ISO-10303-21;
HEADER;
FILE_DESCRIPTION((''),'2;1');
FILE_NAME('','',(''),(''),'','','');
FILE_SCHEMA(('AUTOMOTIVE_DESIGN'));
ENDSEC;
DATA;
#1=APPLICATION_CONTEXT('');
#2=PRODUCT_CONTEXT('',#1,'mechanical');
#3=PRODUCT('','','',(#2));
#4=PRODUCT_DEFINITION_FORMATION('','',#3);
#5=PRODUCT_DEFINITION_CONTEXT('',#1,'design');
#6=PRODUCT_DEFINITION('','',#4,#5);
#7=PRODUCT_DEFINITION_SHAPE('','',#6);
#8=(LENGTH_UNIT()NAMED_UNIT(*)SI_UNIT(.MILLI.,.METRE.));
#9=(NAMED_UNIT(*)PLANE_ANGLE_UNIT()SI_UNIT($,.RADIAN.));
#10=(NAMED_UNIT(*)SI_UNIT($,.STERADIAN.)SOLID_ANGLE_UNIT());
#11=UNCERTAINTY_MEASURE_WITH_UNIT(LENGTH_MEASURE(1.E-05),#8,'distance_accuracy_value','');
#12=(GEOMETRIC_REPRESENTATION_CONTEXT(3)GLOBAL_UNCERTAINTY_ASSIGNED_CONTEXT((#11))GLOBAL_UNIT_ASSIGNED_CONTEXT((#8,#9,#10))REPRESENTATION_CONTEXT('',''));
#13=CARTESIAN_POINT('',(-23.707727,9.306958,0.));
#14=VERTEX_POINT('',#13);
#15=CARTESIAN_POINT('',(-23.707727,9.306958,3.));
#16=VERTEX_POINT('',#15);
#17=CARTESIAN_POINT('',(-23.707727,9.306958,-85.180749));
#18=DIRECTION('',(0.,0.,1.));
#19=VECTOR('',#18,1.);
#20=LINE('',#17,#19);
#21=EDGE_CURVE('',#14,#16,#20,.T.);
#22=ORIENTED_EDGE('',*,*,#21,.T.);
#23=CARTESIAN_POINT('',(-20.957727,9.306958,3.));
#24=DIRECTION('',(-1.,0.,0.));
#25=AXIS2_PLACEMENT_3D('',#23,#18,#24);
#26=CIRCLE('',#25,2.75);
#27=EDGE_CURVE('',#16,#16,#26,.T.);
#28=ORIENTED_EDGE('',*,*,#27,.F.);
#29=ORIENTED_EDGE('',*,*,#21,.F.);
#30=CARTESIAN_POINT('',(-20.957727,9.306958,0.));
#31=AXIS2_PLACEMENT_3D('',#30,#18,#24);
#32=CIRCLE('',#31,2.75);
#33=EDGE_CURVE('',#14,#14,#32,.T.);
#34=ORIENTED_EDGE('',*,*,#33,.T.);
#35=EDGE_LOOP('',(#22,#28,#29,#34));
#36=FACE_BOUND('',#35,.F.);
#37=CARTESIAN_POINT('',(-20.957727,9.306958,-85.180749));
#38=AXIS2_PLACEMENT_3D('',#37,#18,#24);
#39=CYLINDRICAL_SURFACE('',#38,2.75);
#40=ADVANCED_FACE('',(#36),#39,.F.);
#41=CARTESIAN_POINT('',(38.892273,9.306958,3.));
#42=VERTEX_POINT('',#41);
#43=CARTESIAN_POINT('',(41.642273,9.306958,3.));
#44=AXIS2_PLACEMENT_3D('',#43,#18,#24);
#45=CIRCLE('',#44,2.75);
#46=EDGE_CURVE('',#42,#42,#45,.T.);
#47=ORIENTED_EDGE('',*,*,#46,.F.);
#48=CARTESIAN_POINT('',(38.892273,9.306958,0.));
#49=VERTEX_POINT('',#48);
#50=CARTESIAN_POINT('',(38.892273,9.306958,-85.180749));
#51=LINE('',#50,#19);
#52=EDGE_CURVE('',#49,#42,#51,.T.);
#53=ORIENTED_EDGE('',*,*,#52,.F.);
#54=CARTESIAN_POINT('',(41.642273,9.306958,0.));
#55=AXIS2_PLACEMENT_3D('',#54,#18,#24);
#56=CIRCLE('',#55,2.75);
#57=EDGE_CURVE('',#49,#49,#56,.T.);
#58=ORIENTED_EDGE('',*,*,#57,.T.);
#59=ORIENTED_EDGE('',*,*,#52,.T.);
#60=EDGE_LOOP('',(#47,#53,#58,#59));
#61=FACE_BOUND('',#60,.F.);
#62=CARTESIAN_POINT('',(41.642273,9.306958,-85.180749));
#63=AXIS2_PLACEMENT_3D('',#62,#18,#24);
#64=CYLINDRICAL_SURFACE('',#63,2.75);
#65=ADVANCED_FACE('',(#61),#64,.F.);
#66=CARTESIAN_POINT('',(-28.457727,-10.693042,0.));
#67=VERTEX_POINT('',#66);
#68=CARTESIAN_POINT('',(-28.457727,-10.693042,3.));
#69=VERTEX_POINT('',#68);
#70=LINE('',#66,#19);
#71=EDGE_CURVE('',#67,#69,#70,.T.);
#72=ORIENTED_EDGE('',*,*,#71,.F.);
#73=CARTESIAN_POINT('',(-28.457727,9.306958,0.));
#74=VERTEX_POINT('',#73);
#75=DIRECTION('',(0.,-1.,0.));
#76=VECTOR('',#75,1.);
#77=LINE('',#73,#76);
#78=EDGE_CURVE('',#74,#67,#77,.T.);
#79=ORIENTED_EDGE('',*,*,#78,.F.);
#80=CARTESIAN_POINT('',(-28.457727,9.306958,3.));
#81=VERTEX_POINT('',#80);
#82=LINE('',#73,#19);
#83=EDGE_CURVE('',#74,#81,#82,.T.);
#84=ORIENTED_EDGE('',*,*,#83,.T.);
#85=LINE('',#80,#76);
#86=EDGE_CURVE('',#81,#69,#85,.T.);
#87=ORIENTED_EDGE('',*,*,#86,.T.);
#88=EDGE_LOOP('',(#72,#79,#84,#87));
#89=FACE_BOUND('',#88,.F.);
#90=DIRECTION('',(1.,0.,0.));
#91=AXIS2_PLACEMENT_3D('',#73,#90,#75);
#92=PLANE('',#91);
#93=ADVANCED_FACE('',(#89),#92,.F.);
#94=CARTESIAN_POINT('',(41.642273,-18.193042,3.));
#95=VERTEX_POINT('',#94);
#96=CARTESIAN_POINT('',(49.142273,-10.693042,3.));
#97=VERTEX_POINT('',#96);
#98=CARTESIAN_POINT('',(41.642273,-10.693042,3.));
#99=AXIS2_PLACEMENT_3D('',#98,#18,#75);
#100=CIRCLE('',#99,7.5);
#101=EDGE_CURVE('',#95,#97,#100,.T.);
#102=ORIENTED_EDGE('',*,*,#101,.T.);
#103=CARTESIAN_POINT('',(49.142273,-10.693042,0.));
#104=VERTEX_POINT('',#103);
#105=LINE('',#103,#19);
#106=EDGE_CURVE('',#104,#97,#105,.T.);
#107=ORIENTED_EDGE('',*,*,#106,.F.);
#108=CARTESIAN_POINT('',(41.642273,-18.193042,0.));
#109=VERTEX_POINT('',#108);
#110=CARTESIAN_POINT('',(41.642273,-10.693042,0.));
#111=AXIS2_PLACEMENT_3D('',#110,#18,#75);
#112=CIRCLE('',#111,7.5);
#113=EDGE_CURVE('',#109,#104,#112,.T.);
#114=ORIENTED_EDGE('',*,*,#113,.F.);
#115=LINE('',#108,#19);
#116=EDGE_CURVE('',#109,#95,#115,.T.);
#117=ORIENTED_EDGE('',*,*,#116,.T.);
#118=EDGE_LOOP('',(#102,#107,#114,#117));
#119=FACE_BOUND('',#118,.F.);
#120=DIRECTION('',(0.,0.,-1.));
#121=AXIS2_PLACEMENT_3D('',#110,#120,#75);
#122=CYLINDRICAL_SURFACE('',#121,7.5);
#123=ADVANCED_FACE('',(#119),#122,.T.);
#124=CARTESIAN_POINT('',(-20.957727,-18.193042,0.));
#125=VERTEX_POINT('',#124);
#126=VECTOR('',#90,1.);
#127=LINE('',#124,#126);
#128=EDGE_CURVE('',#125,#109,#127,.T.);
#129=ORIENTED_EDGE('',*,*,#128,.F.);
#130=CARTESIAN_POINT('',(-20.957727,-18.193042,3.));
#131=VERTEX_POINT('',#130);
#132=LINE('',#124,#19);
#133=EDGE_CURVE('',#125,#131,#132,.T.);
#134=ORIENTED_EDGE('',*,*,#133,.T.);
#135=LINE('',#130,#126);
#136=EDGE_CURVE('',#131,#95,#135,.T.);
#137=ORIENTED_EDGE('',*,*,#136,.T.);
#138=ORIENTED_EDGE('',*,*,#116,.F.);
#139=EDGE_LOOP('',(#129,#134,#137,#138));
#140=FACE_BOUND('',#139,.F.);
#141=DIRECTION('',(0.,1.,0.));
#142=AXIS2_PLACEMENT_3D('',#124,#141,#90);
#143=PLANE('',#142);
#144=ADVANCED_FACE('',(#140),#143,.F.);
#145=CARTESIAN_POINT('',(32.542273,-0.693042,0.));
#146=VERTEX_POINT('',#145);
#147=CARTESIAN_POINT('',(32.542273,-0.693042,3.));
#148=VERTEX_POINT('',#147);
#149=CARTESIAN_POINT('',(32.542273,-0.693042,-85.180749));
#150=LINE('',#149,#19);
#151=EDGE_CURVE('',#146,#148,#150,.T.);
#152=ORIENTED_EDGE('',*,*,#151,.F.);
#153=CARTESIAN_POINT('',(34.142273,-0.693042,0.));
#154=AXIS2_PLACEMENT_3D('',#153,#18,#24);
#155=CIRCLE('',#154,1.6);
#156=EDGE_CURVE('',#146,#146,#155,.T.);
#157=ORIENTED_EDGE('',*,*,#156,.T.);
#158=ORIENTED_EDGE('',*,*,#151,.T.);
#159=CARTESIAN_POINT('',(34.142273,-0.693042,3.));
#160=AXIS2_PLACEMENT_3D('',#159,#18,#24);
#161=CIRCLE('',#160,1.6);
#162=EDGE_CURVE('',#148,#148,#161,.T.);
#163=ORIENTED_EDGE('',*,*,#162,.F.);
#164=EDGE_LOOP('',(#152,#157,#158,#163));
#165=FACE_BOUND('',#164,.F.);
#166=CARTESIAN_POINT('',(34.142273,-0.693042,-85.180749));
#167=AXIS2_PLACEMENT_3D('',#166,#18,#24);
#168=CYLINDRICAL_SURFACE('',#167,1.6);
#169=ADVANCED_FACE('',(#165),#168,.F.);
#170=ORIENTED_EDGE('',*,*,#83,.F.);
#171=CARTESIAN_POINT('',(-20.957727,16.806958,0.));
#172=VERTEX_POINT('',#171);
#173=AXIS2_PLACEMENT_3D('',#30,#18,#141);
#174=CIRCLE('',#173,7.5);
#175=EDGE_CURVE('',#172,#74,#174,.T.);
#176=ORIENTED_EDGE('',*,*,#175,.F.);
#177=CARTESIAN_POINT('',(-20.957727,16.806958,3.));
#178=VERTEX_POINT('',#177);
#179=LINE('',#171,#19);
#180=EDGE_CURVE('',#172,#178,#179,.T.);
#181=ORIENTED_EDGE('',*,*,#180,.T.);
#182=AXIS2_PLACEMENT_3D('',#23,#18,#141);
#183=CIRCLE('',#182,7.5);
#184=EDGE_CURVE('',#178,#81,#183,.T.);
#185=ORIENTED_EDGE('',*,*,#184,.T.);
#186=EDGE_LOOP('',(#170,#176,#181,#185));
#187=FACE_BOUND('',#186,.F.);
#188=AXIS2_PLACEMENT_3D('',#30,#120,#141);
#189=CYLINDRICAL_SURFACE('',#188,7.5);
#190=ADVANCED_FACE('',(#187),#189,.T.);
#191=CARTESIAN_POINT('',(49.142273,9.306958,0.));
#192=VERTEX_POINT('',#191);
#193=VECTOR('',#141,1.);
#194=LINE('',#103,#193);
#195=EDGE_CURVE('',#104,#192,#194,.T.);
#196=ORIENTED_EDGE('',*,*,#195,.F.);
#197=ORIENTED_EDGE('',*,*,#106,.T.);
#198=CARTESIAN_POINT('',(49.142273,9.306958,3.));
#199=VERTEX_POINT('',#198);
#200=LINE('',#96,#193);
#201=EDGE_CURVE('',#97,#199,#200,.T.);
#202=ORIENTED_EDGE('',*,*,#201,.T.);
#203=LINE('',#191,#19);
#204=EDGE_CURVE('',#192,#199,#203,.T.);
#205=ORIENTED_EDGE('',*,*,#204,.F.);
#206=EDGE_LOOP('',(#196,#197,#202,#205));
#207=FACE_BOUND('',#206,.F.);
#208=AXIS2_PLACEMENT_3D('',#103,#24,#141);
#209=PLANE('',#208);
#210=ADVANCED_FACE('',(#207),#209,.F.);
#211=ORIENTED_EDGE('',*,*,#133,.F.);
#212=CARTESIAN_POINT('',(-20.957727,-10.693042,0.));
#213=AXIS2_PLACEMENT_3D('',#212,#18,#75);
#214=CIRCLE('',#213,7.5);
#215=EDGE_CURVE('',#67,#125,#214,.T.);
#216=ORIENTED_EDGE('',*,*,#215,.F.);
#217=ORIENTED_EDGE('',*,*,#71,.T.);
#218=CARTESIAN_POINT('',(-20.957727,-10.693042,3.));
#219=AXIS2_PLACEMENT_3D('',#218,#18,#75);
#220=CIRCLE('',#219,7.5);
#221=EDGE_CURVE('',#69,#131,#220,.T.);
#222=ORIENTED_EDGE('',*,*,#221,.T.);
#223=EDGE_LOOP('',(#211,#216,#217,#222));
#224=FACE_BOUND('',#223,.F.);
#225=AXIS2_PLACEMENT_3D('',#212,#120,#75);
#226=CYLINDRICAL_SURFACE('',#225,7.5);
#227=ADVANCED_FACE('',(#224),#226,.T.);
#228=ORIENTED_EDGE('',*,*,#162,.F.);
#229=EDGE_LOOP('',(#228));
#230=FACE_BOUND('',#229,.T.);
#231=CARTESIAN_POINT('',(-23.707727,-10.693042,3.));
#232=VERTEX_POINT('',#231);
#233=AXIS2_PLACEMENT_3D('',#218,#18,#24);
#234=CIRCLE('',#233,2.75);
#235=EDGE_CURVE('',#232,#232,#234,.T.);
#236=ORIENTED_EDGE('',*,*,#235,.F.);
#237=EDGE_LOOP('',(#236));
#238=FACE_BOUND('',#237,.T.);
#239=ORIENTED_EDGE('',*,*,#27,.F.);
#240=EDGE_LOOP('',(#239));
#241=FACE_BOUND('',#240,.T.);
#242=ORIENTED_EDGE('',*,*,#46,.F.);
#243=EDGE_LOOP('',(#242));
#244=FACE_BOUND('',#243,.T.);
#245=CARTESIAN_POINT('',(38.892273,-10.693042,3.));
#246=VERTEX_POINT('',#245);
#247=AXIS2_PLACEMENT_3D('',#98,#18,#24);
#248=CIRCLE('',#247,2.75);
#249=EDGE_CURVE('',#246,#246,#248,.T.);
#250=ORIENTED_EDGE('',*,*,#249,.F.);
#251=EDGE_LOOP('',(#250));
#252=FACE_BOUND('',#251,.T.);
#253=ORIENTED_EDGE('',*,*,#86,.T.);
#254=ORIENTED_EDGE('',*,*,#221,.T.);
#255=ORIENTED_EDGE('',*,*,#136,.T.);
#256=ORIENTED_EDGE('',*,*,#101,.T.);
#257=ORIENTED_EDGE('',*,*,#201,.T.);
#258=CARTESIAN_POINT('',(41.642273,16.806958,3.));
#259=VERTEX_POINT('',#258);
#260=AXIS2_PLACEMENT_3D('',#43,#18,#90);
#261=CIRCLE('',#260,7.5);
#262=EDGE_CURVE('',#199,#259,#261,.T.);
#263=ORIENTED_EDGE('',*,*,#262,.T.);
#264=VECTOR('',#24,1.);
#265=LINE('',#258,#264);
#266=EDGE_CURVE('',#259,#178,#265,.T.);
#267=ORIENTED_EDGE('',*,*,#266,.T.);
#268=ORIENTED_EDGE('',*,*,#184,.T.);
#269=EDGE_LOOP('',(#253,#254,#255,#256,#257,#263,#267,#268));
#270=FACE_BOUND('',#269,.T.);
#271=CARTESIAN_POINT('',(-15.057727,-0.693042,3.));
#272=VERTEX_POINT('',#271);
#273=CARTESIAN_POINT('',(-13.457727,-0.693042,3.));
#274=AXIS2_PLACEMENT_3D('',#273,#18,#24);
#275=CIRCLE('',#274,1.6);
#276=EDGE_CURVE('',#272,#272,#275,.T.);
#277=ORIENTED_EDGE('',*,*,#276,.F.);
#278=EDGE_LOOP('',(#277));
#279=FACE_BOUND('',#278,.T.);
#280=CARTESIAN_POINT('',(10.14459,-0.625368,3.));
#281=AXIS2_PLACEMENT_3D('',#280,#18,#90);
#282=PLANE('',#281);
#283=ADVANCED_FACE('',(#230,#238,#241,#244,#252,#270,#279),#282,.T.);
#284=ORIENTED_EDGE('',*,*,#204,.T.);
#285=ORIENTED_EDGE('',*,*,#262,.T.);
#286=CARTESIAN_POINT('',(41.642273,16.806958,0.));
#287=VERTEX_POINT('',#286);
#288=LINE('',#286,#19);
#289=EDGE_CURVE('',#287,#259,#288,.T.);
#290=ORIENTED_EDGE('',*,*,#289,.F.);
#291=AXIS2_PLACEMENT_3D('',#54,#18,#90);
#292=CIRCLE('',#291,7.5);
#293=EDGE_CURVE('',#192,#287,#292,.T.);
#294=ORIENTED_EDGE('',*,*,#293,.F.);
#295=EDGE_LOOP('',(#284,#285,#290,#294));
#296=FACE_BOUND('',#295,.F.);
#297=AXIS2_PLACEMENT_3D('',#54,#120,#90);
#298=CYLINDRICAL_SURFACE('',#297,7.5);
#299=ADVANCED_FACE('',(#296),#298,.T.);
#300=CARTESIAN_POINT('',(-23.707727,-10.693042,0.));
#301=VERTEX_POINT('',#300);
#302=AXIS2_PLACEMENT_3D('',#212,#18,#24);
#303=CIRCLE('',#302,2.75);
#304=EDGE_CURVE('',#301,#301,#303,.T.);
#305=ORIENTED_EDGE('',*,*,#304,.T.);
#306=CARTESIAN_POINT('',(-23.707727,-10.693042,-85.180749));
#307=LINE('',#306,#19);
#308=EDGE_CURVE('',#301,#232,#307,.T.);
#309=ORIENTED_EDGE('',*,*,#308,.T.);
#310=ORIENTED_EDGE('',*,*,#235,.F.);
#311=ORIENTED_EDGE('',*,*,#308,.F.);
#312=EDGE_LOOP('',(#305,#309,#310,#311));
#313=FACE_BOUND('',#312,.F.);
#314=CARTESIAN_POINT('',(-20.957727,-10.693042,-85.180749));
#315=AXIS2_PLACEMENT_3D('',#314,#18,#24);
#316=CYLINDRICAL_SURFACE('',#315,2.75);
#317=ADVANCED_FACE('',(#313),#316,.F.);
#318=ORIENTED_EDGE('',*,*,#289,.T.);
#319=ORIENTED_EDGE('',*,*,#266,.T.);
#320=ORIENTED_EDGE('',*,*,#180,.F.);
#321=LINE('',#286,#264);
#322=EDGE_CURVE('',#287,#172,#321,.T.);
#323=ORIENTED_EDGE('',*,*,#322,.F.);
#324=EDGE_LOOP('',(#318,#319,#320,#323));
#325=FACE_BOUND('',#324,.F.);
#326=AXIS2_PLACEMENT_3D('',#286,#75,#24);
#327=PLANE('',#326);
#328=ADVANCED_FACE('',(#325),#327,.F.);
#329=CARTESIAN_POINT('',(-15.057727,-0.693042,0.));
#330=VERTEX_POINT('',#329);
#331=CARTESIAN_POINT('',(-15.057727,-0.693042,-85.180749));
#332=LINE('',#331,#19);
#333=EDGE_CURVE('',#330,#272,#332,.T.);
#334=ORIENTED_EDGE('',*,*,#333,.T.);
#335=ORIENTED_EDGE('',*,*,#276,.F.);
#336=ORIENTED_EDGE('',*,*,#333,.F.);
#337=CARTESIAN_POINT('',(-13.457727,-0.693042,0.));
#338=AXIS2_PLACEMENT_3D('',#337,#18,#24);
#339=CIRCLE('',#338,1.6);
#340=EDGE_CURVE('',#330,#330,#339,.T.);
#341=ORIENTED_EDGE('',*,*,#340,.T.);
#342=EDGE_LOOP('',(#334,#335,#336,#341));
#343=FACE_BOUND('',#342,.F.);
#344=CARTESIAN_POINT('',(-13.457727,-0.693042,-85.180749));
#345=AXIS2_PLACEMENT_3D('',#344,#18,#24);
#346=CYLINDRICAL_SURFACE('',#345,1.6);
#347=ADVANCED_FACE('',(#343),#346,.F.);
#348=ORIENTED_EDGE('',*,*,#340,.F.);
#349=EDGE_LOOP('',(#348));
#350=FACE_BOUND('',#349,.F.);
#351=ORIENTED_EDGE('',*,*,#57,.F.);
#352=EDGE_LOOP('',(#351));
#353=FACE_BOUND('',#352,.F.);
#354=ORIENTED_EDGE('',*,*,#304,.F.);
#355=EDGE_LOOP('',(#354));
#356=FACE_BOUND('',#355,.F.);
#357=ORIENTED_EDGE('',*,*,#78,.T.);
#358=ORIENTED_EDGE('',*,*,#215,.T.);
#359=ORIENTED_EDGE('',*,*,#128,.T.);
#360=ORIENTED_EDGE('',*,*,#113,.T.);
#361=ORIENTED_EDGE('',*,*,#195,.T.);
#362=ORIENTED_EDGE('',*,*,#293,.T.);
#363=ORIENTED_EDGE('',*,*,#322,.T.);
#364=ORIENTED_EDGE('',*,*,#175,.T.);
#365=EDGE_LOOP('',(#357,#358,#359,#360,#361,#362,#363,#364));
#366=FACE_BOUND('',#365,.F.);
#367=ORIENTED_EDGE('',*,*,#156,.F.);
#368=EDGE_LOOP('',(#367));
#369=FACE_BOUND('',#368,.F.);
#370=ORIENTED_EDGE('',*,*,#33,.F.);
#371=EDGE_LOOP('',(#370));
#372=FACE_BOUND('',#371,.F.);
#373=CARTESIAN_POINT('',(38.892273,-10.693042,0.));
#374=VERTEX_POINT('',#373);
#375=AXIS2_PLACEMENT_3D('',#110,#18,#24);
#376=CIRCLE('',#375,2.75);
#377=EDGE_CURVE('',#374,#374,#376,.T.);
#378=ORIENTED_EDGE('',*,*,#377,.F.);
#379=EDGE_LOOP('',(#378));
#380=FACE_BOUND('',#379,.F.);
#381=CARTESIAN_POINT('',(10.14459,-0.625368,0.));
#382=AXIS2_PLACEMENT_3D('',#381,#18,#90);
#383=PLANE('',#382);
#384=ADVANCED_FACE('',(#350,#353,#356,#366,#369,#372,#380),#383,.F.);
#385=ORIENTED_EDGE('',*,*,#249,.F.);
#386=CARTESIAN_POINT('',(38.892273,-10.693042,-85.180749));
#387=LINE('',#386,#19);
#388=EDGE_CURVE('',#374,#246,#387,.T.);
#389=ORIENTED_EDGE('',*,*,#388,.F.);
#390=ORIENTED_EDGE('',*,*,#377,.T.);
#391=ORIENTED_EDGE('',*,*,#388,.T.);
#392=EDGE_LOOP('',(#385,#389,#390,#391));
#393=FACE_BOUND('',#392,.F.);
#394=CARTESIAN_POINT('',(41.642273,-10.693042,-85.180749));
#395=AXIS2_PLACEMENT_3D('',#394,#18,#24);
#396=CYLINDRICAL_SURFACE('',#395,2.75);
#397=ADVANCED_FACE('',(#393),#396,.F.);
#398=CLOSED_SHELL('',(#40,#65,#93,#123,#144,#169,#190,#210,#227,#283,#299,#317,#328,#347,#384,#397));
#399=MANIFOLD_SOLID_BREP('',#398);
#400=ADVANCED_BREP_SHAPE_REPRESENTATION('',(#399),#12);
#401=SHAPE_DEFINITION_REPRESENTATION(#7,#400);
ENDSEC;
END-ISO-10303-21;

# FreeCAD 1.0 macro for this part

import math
import FreeCAD as App
import Part
import Sketcher
from FreeCAD import Vector
Q = App.Units.Quantity

doc = App.newDocument("Part")
params = doc.addObject("Spreadsheet::Sheet", "Params")
for row, (alias, value) in enumerate([
    ("sketch1_radius", "7.5 mm"),
    ("sketch1_height", "20 mm"),
    ("sketch1_width", "62.6 mm"),
    ("pad1_length", "3 mm"),
    ("sketch2_diameter", "5.5 mm"),
    ("hole_diameter", "5.5 mm"),
    ("sketch3_diameter", "3.2 mm"),
    ("hole2_diameter", "3.2 mm"),
], start=1):
    params.set(f"A{row}", alias)
    params.set(f"B{row}", "=" + value)
    params.setAlias(f"B{row}", alias)

body = doc.addObject("PartDesign::Body", "Body")

# Sketch on XY plane
sketch1 = doc.addObject("Sketcher::SketchObject", "Sketch")
body.addObject(sketch1)
sketch1.AttachmentSupport = (doc.XY_Plane, [""])
sketch1.MapMode = "FlatFace"
sketch1.addGeometry(Part.LineSegment(Vector(42, 17, 0), Vector(-21, 17, 0)), False)
sketch1.addGeometry(Part.ArcOfCircle(Part.Circle(Vector(-21, 9, 0), Vector(0, 0, 1), 8), math.radians(90), math.radians(180)), False)
sketch1.addGeometry(Part.LineSegment(Vector(-28, 9, 0), Vector(-28, -11, 0)), False)
sketch1.addGeometry(Part.ArcOfCircle(Part.Circle(Vector(-21, -11, 0), Vector(0, 0, 1), 8), math.radians(180), math.radians(270)), False)
sketch1.addGeometry(Part.LineSegment(Vector(-21, -18, 0), Vector(42, -18, 0)), False)
sketch1.addGeometry(Part.ArcOfCircle(Part.Circle(Vector(42, -11, 0), Vector(0, 0, 1), 8), math.radians(-90), math.radians(0)), False)
sketch1.addGeometry(Part.LineSegment(Vector(49, -11, 0), Vector(49, 9, 0)), False)
sketch1.addGeometry(Part.ArcOfCircle(Part.Circle(Vector(42, 9, 0), Vector(0, 0, 1), 8), math.radians(0), math.radians(90)), False)
sketch1.addConstraint(Sketcher.Constraint("Tangent", 0, 2, 1, 1))
sketch1.addConstraint(Sketcher.Constraint("Tangent", 1, 2, 2, 1))
sketch1.addConstraint(Sketcher.Constraint("Tangent", 2, 2, 3, 1))
sketch1.addConstraint(Sketcher.Constraint("Tangent", 3, 2, 4, 1))
sketch1.addConstraint(Sketcher.Constraint("Tangent", 4, 2, 5, 1))
sketch1.addConstraint(Sketcher.Constraint("Tangent", 5, 2, 6, 1))
sketch1.addConstraint(Sketcher.Constraint("Tangent", 6, 2, 7, 1))
sketch1.addConstraint(Sketcher.Constraint("Tangent", 7, 2, 0, 1))
sketch1.addConstraint(Sketcher.Constraint("Horizontal", 0))
sketch1.addConstraint(Sketcher.Constraint("Vertical", 2))
sketch1.addConstraint(Sketcher.Constraint("Horizontal", 4))
sketch1.addConstraint(Sketcher.Constraint("Vertical", 6))
sketch1.addConstraint(Sketcher.Constraint("Equal", 1, 3))
sketch1.addConstraint(Sketcher.Constraint("Equal", 3, 5))
sketch1.addConstraint(Sketcher.Constraint("Equal", 5, 7))
sketch1.addConstraint(Sketcher.Constraint("Radius", 1, Q("7.5 mm")))
sketch1.addConstraint(Sketcher.Constraint("DistanceY", 2, 2, 2, 1, Q("20 mm")))
sketch1.addConstraint(Sketcher.Constraint("DistanceX", 0, 2, 0, 1, Q("62.6 mm")))
sketch1.addConstraint(Sketcher.Constraint("DistanceY", -1, 1, 1, 3, Q("9.306958 mm")))
sketch1.addConstraint(Sketcher.Constraint("DistanceX", 1, 3, -1, 1, Q("20.957727 mm")))
sketch1.setExpression("Constraints[15]", "Params.sketch1_radius")
sketch1.setExpression("Constraints[16]", "Params.sketch1_height")
sketch1.setExpression("Constraints[17]", "Params.sketch1_width")
pad1 = doc.addObject("PartDesign::Pad", "Pad")
body.addObject(pad1)
pad1.Profile = sketch1
pad1.setExpression("Length", "Params.pad1_length")

# Sketch on XY plane
sketch2 = doc.addObject("Sketcher::SketchObject", "Sketch001")
body.addObject(sketch2)
sketch2.AttachmentSupport = (doc.XY_Plane, [""])
sketch2.MapMode = "FlatFace"
sketch2.addGeometry(Part.Circle(Vector(-21, 9.3, 0), Vector(0, 0, 1), 2.8), False)
sketch2.addGeometry(Part.Circle(Vector(-21, -10.7, 0), Vector(0, 0, 1), 2.8), False)
sketch2.addGeometry(Part.Circle(Vector(41.6, -10.7, 0), Vector(0, 0, 1), 2.8), False)
sketch2.addGeometry(Part.Circle(Vector(41.6, 9.3, 0), Vector(0, 0, 1), 2.8), False)
sketch2.addConstraint(Sketcher.Constraint("Equal", 0, 1))
sketch2.addConstraint(Sketcher.Constraint("Equal", 1, 2))
sketch2.addConstraint(Sketcher.Constraint("Equal", 2, 3))
sketch2.addConstraint(Sketcher.Constraint("Horizontal", 1, 3, 2, 3))
sketch2.addConstraint(Sketcher.Constraint("Horizontal", 0, 3, 3, 3))
sketch2.addConstraint(Sketcher.Constraint("Vertical", 0, 3, 1, 3))
sketch2.addConstraint(Sketcher.Constraint("Vertical", 2, 3, 3, 3))
sketch2.addConstraint(Sketcher.Constraint("Diameter", 0, Q("5.5 mm")))
sketch2.addConstraint(Sketcher.Constraint("DistanceY", 1, 3, 0, 3, Q("20 mm")))
sketch2.addConstraint(Sketcher.Constraint("DistanceX", 1, 3, 2, 3, Q("62.6 mm")))
sketch2.addConstraint(Sketcher.Constraint("DistanceY", -1, 1, 0, 3, Q("9.306958 mm")))
sketch2.addConstraint(Sketcher.Constraint("DistanceX", 0, 3, -1, 1, Q("20.957727 mm")))
sketch2.setExpression("Constraints[7]", "Params.sketch2_diameter")
doc.recompute()
hole = doc.addObject("PartDesign::Hole", "Hole")
body.addObject(hole)
hole.Profile = sketch2
hole.ThreadType = "None"
hole.setExpression("Diameter", "Params.hole_diameter")
hole.DepthType = "ThroughAll"
hole.Reversed = True

# Sketch on XY plane
sketch3 = doc.addObject("Sketcher::SketchObject", "Sketch002")
body.addObject(sketch3)
sketch3.AttachmentSupport = (doc.XY_Plane, [""])
sketch3.MapMode = "FlatFace"
sketch3.addGeometry(Part.Circle(Vector(-13.5, -0.7, 0), Vector(0, 0, 1), 1.6), False)
sketch3.addGeometry(Part.Circle(Vector(34.1, -0.7, 0), Vector(0, 0, 1), 1.6), False)
sketch3.addConstraint(Sketcher.Constraint("Equal", 0, 1))
sketch3.addConstraint(Sketcher.Constraint("Horizontal", 0, 3, 1, 3))
sketch3.addConstraint(Sketcher.Constraint("Diameter", 0, Q("3.2 mm")))
sketch3.addConstraint(Sketcher.Constraint("DistanceX", 0, 3, 1, 3, Q("47.6 mm")))
sketch3.addConstraint(Sketcher.Constraint("DistanceY", 0, 3, -1, 1, Q("0.693042 mm")))
sketch3.addConstraint(Sketcher.Constraint("DistanceX", 0, 3, -1, 1, Q("13.457727 mm")))
sketch3.setExpression("Constraints[2]", "Params.sketch3_diameter")
doc.recompute()
hole2 = doc.addObject("PartDesign::Hole", "Hole001")
body.addObject(hole2)
hole2.Profile = sketch3
hole2.ThreadType = "None"
hole2.setExpression("Diameter", "Params.hole2_diameter")
hole2.DepthType = "ThroughAll"
hole2.Reversed = True

doc.recompute()
